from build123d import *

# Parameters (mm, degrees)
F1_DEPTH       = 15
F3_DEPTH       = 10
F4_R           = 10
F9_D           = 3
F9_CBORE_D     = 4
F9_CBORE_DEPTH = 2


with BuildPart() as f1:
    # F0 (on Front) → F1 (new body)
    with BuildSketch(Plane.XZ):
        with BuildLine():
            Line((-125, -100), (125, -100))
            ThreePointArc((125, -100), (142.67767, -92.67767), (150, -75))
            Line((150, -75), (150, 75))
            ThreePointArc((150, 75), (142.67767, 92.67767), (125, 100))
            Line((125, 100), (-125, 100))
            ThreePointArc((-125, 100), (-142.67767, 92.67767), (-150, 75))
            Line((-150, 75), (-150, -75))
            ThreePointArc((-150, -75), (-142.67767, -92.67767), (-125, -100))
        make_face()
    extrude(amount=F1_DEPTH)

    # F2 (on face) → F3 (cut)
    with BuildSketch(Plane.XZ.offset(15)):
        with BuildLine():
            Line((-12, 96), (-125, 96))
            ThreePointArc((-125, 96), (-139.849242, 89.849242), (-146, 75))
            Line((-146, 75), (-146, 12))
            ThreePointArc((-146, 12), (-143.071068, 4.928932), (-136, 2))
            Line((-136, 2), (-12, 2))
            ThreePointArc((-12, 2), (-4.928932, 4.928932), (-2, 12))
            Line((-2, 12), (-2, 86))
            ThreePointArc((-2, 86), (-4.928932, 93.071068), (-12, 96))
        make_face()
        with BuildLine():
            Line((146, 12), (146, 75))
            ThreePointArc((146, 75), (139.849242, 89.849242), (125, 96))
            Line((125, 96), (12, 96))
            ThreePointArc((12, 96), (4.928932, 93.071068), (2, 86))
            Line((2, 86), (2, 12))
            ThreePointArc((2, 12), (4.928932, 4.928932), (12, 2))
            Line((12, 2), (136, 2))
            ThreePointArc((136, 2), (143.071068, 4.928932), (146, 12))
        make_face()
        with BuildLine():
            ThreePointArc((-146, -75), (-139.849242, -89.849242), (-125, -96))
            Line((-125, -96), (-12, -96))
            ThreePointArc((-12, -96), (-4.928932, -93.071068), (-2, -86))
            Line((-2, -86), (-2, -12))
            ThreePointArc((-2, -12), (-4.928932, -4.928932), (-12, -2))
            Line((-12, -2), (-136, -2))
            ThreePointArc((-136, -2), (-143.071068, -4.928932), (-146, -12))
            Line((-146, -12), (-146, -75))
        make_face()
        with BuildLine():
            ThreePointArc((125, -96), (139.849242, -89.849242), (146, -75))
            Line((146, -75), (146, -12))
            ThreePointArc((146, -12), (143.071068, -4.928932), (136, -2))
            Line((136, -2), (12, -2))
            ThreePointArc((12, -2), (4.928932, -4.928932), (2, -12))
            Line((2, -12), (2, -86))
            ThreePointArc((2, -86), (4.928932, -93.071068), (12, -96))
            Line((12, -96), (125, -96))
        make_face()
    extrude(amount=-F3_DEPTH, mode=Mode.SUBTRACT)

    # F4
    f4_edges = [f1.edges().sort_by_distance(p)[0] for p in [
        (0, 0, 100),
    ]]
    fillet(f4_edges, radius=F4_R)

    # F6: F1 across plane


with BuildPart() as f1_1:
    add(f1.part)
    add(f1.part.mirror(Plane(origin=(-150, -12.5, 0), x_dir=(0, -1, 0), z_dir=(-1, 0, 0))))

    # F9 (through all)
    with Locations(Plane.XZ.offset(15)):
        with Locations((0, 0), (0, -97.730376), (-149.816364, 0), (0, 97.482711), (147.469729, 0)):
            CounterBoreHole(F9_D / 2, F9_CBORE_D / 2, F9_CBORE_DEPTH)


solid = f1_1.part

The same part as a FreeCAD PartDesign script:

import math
import FreeCAD as App
import Part
import Sketcher

V = App.Vector
Q = App.Units.Quantity


def edges_at(feature, points):
    """Names of the edges that pass closest to the given points."""
    edges = feature.Shape.Edges
    near = lambda p: min(range(len(edges)), key=lambda i: edges[i].distToShape(Part.Vertex(*p))[0])
    return sorted({f"Edge{near(p) + 1}" for p in points})

doc = App.newDocument("Part")
params = doc.addObject("Spreadsheet::Sheet", "Params")
for row, (alias, value) in enumerate([
    ("sketch1_radius", "24.999998 mm"),
    ("sketch1_width", "250 mm"),
    ("sketch1_height", "150 mm"),
    ("pad1_length", "15 mm"),
    ("sketch2_radius", "21.000001 mm"),
    ("sketch2_radius2", "9.999999 mm"),
    ("sketch2_width", "113 mm"),
    ("sketch2_height", "63 mm"),
    ("pocket1_length", "10 mm"),
    ("fillet_radius", "10 mm"),
    ("sketch3_diameter", "3 mm"),
    ("hole_diameter", "3 mm"),
    ("hole_cbore_diameter", "4 mm"),
    ("hole_cbore_depth", "2 mm"),
], start=1):
    params.set(f"A{row}", alias)
    params.set(f"B{row}", "=" + value)
    params.setAlias(f"B{row}", alias)

body = doc.addObject("PartDesign::Body", "Body")

# Sketch on XZ plane
sketch1 = body.newObject("Sketcher::SketchObject", "Sketch")
sketch1.AttachmentSupport = (doc.getObject("XZ_Plane"), [""])
sketch1.MapMode = "FlatFace"
sketch1.addGeometry([
    Part.LineSegment(V(-125, -100, 0), V(125, -100, 0)),  # 0
    Part.ArcOfCircle(Part.Circle(V(125.000002, -75.000002, 0), V(0, 0, 1), 24.999998), math.radians(-90.000004), math.radians(0.000004)),  # 1
    Part.LineSegment(V(150, -75, 0), V(150, 75, 0)),  # 2
    Part.ArcOfCircle(Part.Circle(V(125.000002, 75.000002, 0), V(0, 0, 1), 24.999998), math.radians(-0.000004), math.radians(90.000004)),  # 3
    Part.LineSegment(V(125, 100, 0), V(-125, 100, 0)),  # 4
    Part.ArcOfCircle(Part.Circle(V(-125.000002, 75.000002, 0), V(0, 0, 1), 24.999998), math.radians(89.999996), math.radians(180.000004)),  # 5
    Part.LineSegment(V(-150, 75, 0), V(-150, -75, 0)),  # 6
    Part.ArcOfCircle(Part.Circle(V(-125.000002, -75.000002, 0), V(0, 0, 1), 24.999998), math.radians(179.999996), math.radians(270.000004)),  # 7
], False)
sketch1.addConstraint([
    Sketcher.Constraint("Tangent", 0, 2, 1, 1),
    Sketcher.Constraint("Tangent", 1, 2, 2, 1),
    Sketcher.Constraint("Tangent", 2, 2, 3, 1),
    Sketcher.Constraint("Tangent", 3, 2, 4, 1),
    Sketcher.Constraint("Tangent", 4, 2, 5, 1),
    Sketcher.Constraint("Tangent", 5, 2, 6, 1),
    Sketcher.Constraint("Tangent", 6, 2, 7, 1),
    Sketcher.Constraint("Tangent", 7, 2, 0, 1),
    Sketcher.Constraint("Horizontal", 0),
    Sketcher.Constraint("Vertical", 2),
    Sketcher.Constraint("Horizontal", 4),
    Sketcher.Constraint("Vertical", 6),
    Sketcher.Constraint("Equal", 1, 3),
    Sketcher.Constraint("Equal", 3, 5),
    Sketcher.Constraint("Equal", 5, 7),
    Sketcher.Constraint("Symmetric", 1, 3, 5, 3, -1, 1),
    Sketcher.Constraint("Radius", 1, Q("24.999998 mm")),
    Sketcher.Constraint("DistanceX", 0, 1, 0, 2, Q("250 mm")),
    Sketcher.Constraint("DistanceY", 2, 1, 2, 2, Q("150 mm")),
])
sketch1.setExpression("Constraints[16]", "Params.sketch1_radius")
sketch1.setExpression("Constraints[17]", "Params.sketch1_width")
sketch1.setExpression("Constraints[18]", "Params.sketch1_height")
pad1 = body.newObject("PartDesign::Pad", "Pad")
pad1.Profile = sketch1
pad1.setExpression("Length", "Params.pad1_length")

# Sketch on XZ plane
sketch2 = body.newObject("Sketcher::SketchObject", "Sketch001")
sketch2.AttachmentSupport = (doc.getObject("XZ_Plane"), [""])
sketch2.MapMode = "FlatFace"
sketch2.AttachmentOffset = App.Placement(V(0, 0, 15), App.Rotation())
sketch2.addGeometry([
    Part.LineSegment(V(-12, 96, 0), V(-125, 96, 0)),  # 0
    Part.ArcOfCircle(Part.Circle(V(-124.999999, 74.999999, 0), V(0, 0, 1), 21.000001), math.radians(90.000004), math.radians(179.999996)),  # 1
    Part.LineSegment(V(-146, 75, 0), V(-146, 12, 0)),  # 2
    Part.ArcOfCircle(Part.Circle(V(-136.000001, 11.999999, 0), V(0, 0, 1), 9.999999), math.radians(179.999996), math.radians(270.000004)),  # 3
    Part.LineSegment(V(-136, 2, 0), V(-12, 2, 0)),  # 4
    Part.ArcOfCircle(Part.Circle(V(-11.999999, 11.999999, 0), V(0, 0, 1), 9.999999), math.radians(-90.000004), math.radians(0.000004)),  # 5
    Part.LineSegment(V(-2, 12, 0), V(-2, 86, 0)),  # 6
    Part.ArcOfCircle(Part.Circle(V(-11.999999, 86.000001, 0), V(0, 0, 1), 9.999999), math.radians(-0.000004), math.radians(90.000004)),  # 7
    Part.LineSegment(V(146, 12, 0), V(146, 75, 0)),  # 8
    Part.ArcOfCircle(Part.Circle(V(124.999999, 74.999999, 0), V(0, 0, 1), 21.000001), math.radians(0.000004), math.radians(89.999996)),  # 9
    Part.LineSegment(V(125, 96, 0), V(12, 96, 0)),  # 10
    Part.ArcOfCircle(Part.Circle(V(11.999999, 86.000001, 0), V(0, 0, 1), 9.999999), math.radians(89.999996), math.radians(180.000004)),  # 11
    Part.LineSegment(V(2, 86, 0), V(2, 12, 0)),  # 12
    Part.ArcOfCircle(Part.Circle(V(11.999999, 11.999999, 0), V(0, 0, 1), 9.999999), math.radians(179.999996), math.radians(270.000004)),  # 13
    Part.LineSegment(V(12, 2, 0), V(136, 2, 0)),  # 14
    Part.ArcOfCircle(Part.Circle(V(136.000001, 11.999999, 0), V(0, 0, 1), 9.999999), math.radians(-90.000004), math.radians(0.000004)),  # 15
    Part.ArcOfCircle(Part.Circle(V(-124.999999, -74.999999, 0), V(0, 0, 1), 21.000001), math.radians(-179.999996), math.radians(-90.000004)),  # 16
    Part.LineSegment(V(-125, -96, 0), V(-12, -96, 0)),  # 17
    Part.ArcOfCircle(Part.Circle(V(-11.999999, -86.000001, 0), V(0, 0, 1), 9.999999), math.radians(-90.000004), math.radians(0.000004)),  # 18
    Part.LineSegment(V(-2, -86, 0), V(-2, -12, 0)),  # 19
    Part.ArcOfCircle(Part.Circle(V(-11.999999, -11.999999, 0), V(0, 0, 1), 9.999999), math.radians(-0.000004), math.radians(90.000004)),  # 20
    Part.LineSegment(V(-12, -2, 0), V(-136, -2, 0)),  # 21
    Part.ArcOfCircle(Part.Circle(V(-136.000001, -11.999999, 0), V(0, 0, 1), 9.999999), math.radians(89.999996), math.radians(180.000004)),  # 22
    Part.LineSegment(V(-146, -12, 0), V(-146, -75, 0)),  # 23
    Part.ArcOfCircle(Part.Circle(V(124.999999, -74.999999, 0), V(0, 0, 1), 21.000001), math.radians(-89.999996), math.radians(-0.000004)),  # 24
    Part.LineSegment(V(146, -75, 0), V(146, -12, 0)),  # 25
    Part.ArcOfCircle(Part.Circle(V(136.000001, -11.999999, 0), V(0, 0, 1), 9.999999), math.radians(-0.000004), math.radians(90.000004)),  # 26
    Part.LineSegment(V(136, -2, 0), V(12, -2, 0)),  # 27
    Part.ArcOfCircle(Part.Circle(V(11.999999, -11.999999, 0), V(0, 0, 1), 9.999999), math.radians(89.999996), math.radians(180.000004)),  # 28
    Part.LineSegment(V(2, -12, 0), V(2, -86, 0)),  # 29
    Part.ArcOfCircle(Part.Circle(V(11.999999, -86.000001, 0), V(0, 0, 1), 9.999999), math.radians(179.999996), math.radians(270.000004)),  # 30
    Part.LineSegment(V(12, -96, 0), V(125, -96, 0)),  # 31
], False)
sketch2.addConstraint([
    Sketcher.Constraint("Tangent", 0, 2, 1, 1),
    Sketcher.Constraint("Tangent", 1, 2, 2, 1),
    Sketcher.Constraint("Tangent", 2, 2, 3, 1),
    Sketcher.Constraint("Tangent", 3, 2, 4, 1),
    Sketcher.Constraint("Tangent", 4, 2, 5, 1),
    Sketcher.Constraint("Tangent", 5, 2, 6, 1),
    Sketcher.Constraint("Tangent", 6, 2, 7, 1),
    Sketcher.Constraint("Tangent", 7, 2, 0, 1),
    Sketcher.Constraint("Tangent", 8, 2, 9, 1),
    Sketcher.Constraint("Tangent", 9, 2, 10, 1),
    Sketcher.Constraint("Tangent", 10, 2, 11, 1),
    Sketcher.Constraint("Tangent", 11, 2, 12, 1),
    Sketcher.Constraint("Tangent", 12, 2, 13, 1),
    Sketcher.Constraint("Tangent", 13, 2, 14, 1),
    Sketcher.Constraint("Tangent", 14, 2, 15, 1),
    Sketcher.Constraint("Tangent", 15, 2, 8, 1),
    Sketcher.Constraint("Tangent", 16, 2, 17, 1),
    Sketcher.Constraint("Tangent", 17, 2, 18, 1),
    Sketcher.Constraint("Tangent", 18, 2, 19, 1),
    Sketcher.Constraint("Tangent", 19, 2, 20, 1),
    Sketcher.Constraint("Tangent", 20, 2, 21, 1),
    Sketcher.Constraint("Tangent", 21, 2, 22, 1),
    Sketcher.Constraint("Tangent", 22, 2, 23, 1),
    Sketcher.Constraint("Tangent", 23, 2, 16, 1),
    Sketcher.Constraint("Tangent", 24, 2, 25, 1),
    Sketcher.Constraint("Tangent", 25, 2, 26, 1),
    Sketcher.Constraint("Tangent", 26, 2, 27, 1),
    Sketcher.Constraint("Tangent", 27, 2, 28, 1),
    Sketcher.Constraint("Tangent", 28, 2, 29, 1),
    Sketcher.Constraint("Tangent", 29, 2, 30, 1),
    Sketcher.Constraint("Tangent", 30, 2, 31, 1),
    Sketcher.Constraint("Tangent", 31, 2, 24, 1),
    Sketcher.Constraint("Horizontal", 0),
    Sketcher.Constraint("Vertical", 2),
    Sketcher.Constraint("Horizontal", 4),
    Sketcher.Constraint("Vertical", 6),
    Sketcher.Constraint("Vertical", 8),
    Sketcher.Constraint("Horizontal", 10),
    Sketcher.Constraint("Vertical", 12),
    Sketcher.Constraint("Horizontal", 14),
    Sketcher.Constraint("Horizontal", 17),
    Sketcher.Constraint("Vertical", 19),
    Sketcher.Constraint("Horizontal", 21),
    Sketcher.Constraint("Vertical", 23),
    Sketcher.Constraint("Vertical", 25),
    Sketcher.Constraint("Horizontal", 27),
    Sketcher.Constraint("Vertical", 29),
    Sketcher.Constraint("Horizontal", 31),
    Sketcher.Constraint("Equal", 3, 5),
    Sketcher.Constraint("Equal", 5, 7),
    Sketcher.Constraint("Equal", 1, 9),
    Sketcher.Constraint("Equal", 7, 11),
    Sketcher.Constraint("Equal", 11, 13),
    Sketcher.Constraint("Equal", 13, 15),
    Sketcher.Constraint("Equal", 9, 16),
    Sketcher.Constraint("Equal", 15, 18),
    Sketcher.Constraint("Equal", 18, 20),
    Sketcher.Constraint("Equal", 20, 22),
    Sketcher.Constraint("Equal", 16, 24),
    Sketcher.Constraint("Equal", 22, 26),
    Sketcher.Constraint("Equal", 26, 28),
    Sketcher.Constraint("Equal", 28, 30),
    Sketcher.Constraint("Symmetric", 9, 3, 16, 3, -1, 1),
    Sketcher.Constraint("Symmetric", 13, 3, 20, 3, -1, 1),
    Sketcher.Constraint("Symmetric", 1, 3, 24, 3, -1, 1),
    Sketcher.Constraint("Symmetric", 5, 3, 28, 3, -1, 1),
    Sketcher.Constraint("Symmetric", 1, 3, 9, 3, -2),
    Sketcher.Constraint("Symmetric", 5, 3, 13, 3, -2),
    Sketcher.Constraint("Radius", 1, Q("21.000001 mm")),
    Sketcher.Constraint("Radius", 3, Q("9.999999 mm")),
    Sketcher.Constraint("DistanceX", 0, 2, 0, 1, Q("113 mm")),
    Sketcher.Constraint("DistanceY", 2, 2, 2, 1, Q("63 mm")),
    Sketcher.Constraint("DistanceX", 1, 3, -1, 1, Q("124.999999 mm")),
    Sketcher.Constraint("DistanceY", -1, 1, 1, 3, Q("74.999999 mm")),
])
sketch2.setExpression("Constraints[68]", "Params.sketch2_radius")
sketch2.setExpression("Constraints[69]", "Params.sketch2_radius2")
sketch2.setExpression("Constraints[70]", "Params.sketch2_width")
sketch2.setExpression("Constraints[71]", "Params.sketch2_height")
pocket1 = body.newObject("PartDesign::Pocket", "Pocket")
pocket1.Profile = sketch2
pocket1.setExpression("Length", "Params.pocket1_length")
doc.recompute()

fillet = body.newObject("PartDesign::Fillet", "Fillet")
fillet.Base = (pocket1, edges_at(pocket1, [(0, 0, 100)]))
fillet.setExpression("Radius", "Params.fillet_radius")
body2 = doc.addObject("PartDesign::Body", "Body001")
doc.recompute()

body2.BaseFeature = body
doc.recompute()

mirroring = doc.addObject("Part::Mirroring", "Mirroring")
mirroring.Source = body
mirroring.Base = V(-150, -12.5, 0)
mirroring.Normal = V(-1, 0, 0)
body3 = doc.addObject("PartDesign::Body", "Body002")
body3.BaseFeature = mirroring
boolean = body2.newObject("PartDesign::Boolean", "Boolean")
boolean.Type = "Fuse"
boolean.addObjects([body3])
doc.recompute()

# Sketch on XZ plane
sketch3 = body2.newObject("Sketcher::SketchObject", "Sketch002")
sketch3.AttachmentSupport = (doc.getObject("XZ_Plane001"), [""])
sketch3.MapMode = "FlatFace"
sketch3.AttachmentOffset = App.Placement(V(0, 0, 15), App.Rotation())
sketch3.addGeometry([
    Part.Circle(V(0, 0, 0), V(0, 0, 1), 1.5),  # 0
    Part.Circle(V(0, -97.730376, 0), V(0, 0, 1), 1.5),  # 1
    Part.Circle(V(-149.816364, 0, 0), V(0, 0, 1), 1.5),  # 2
    Part.Circle(V(0, 97.482711, 0), V(0, 0, 1), 1.5),  # 3
    Part.Circle(V(147.469729, 0, 0), V(0, 0, 1), 1.5),  # 4
], False)
sketch3.addConstraint([
    Sketcher.Constraint("Coincident", 0, 3, -1, 1),
    Sketcher.Constraint("Equal", 0, 1),
    Sketcher.Constraint("Equal", 1, 2),
    Sketcher.Constraint("Equal", 2, 3),
    Sketcher.Constraint("Equal", 3, 4),
    Sketcher.Constraint("PointOnObject", 1, 3, -2),
    Sketcher.Constraint("PointOnObject", 2, 3, -1),
    Sketcher.Constraint("PointOnObject", 3, 3, -2),
    Sketcher.Constraint("PointOnObject", 4, 3, -1),
    Sketcher.Constraint("Diameter", 0, Q("3 mm")),
    Sketcher.Constraint("DistanceY", -1, 1, 3, 3, Q("97.482711 mm")),
    Sketcher.Constraint("DistanceX", -1, 1, 4, 3, Q("147.469729 mm")),
    Sketcher.Constraint("DistanceY", 1, 3, -1, 1, Q("97.730376 mm")),
    Sketcher.Constraint("DistanceX", 2, 3, -1, 1, Q("149.816364 mm")),
])
sketch3.setExpression("Constraints[9]", "Params.sketch3_diameter")
doc.recompute()
hole = body2.newObject("PartDesign::Hole", "Hole")
hole.Profile = sketch3
hole.ThreadType = "None"
hole.setExpression("Diameter", "Params.hole_diameter")
hole.DepthType = "ThroughAll"
hole.HoleCutType = "Counterbore"
hole.setExpression("HoleCutDiameter", "Params.hole_cbore_diameter")
hole.setExpression("HoleCutDepth", "Params.hole_cbore_depth")
mirroring.Visibility = False

doc.recompute()
